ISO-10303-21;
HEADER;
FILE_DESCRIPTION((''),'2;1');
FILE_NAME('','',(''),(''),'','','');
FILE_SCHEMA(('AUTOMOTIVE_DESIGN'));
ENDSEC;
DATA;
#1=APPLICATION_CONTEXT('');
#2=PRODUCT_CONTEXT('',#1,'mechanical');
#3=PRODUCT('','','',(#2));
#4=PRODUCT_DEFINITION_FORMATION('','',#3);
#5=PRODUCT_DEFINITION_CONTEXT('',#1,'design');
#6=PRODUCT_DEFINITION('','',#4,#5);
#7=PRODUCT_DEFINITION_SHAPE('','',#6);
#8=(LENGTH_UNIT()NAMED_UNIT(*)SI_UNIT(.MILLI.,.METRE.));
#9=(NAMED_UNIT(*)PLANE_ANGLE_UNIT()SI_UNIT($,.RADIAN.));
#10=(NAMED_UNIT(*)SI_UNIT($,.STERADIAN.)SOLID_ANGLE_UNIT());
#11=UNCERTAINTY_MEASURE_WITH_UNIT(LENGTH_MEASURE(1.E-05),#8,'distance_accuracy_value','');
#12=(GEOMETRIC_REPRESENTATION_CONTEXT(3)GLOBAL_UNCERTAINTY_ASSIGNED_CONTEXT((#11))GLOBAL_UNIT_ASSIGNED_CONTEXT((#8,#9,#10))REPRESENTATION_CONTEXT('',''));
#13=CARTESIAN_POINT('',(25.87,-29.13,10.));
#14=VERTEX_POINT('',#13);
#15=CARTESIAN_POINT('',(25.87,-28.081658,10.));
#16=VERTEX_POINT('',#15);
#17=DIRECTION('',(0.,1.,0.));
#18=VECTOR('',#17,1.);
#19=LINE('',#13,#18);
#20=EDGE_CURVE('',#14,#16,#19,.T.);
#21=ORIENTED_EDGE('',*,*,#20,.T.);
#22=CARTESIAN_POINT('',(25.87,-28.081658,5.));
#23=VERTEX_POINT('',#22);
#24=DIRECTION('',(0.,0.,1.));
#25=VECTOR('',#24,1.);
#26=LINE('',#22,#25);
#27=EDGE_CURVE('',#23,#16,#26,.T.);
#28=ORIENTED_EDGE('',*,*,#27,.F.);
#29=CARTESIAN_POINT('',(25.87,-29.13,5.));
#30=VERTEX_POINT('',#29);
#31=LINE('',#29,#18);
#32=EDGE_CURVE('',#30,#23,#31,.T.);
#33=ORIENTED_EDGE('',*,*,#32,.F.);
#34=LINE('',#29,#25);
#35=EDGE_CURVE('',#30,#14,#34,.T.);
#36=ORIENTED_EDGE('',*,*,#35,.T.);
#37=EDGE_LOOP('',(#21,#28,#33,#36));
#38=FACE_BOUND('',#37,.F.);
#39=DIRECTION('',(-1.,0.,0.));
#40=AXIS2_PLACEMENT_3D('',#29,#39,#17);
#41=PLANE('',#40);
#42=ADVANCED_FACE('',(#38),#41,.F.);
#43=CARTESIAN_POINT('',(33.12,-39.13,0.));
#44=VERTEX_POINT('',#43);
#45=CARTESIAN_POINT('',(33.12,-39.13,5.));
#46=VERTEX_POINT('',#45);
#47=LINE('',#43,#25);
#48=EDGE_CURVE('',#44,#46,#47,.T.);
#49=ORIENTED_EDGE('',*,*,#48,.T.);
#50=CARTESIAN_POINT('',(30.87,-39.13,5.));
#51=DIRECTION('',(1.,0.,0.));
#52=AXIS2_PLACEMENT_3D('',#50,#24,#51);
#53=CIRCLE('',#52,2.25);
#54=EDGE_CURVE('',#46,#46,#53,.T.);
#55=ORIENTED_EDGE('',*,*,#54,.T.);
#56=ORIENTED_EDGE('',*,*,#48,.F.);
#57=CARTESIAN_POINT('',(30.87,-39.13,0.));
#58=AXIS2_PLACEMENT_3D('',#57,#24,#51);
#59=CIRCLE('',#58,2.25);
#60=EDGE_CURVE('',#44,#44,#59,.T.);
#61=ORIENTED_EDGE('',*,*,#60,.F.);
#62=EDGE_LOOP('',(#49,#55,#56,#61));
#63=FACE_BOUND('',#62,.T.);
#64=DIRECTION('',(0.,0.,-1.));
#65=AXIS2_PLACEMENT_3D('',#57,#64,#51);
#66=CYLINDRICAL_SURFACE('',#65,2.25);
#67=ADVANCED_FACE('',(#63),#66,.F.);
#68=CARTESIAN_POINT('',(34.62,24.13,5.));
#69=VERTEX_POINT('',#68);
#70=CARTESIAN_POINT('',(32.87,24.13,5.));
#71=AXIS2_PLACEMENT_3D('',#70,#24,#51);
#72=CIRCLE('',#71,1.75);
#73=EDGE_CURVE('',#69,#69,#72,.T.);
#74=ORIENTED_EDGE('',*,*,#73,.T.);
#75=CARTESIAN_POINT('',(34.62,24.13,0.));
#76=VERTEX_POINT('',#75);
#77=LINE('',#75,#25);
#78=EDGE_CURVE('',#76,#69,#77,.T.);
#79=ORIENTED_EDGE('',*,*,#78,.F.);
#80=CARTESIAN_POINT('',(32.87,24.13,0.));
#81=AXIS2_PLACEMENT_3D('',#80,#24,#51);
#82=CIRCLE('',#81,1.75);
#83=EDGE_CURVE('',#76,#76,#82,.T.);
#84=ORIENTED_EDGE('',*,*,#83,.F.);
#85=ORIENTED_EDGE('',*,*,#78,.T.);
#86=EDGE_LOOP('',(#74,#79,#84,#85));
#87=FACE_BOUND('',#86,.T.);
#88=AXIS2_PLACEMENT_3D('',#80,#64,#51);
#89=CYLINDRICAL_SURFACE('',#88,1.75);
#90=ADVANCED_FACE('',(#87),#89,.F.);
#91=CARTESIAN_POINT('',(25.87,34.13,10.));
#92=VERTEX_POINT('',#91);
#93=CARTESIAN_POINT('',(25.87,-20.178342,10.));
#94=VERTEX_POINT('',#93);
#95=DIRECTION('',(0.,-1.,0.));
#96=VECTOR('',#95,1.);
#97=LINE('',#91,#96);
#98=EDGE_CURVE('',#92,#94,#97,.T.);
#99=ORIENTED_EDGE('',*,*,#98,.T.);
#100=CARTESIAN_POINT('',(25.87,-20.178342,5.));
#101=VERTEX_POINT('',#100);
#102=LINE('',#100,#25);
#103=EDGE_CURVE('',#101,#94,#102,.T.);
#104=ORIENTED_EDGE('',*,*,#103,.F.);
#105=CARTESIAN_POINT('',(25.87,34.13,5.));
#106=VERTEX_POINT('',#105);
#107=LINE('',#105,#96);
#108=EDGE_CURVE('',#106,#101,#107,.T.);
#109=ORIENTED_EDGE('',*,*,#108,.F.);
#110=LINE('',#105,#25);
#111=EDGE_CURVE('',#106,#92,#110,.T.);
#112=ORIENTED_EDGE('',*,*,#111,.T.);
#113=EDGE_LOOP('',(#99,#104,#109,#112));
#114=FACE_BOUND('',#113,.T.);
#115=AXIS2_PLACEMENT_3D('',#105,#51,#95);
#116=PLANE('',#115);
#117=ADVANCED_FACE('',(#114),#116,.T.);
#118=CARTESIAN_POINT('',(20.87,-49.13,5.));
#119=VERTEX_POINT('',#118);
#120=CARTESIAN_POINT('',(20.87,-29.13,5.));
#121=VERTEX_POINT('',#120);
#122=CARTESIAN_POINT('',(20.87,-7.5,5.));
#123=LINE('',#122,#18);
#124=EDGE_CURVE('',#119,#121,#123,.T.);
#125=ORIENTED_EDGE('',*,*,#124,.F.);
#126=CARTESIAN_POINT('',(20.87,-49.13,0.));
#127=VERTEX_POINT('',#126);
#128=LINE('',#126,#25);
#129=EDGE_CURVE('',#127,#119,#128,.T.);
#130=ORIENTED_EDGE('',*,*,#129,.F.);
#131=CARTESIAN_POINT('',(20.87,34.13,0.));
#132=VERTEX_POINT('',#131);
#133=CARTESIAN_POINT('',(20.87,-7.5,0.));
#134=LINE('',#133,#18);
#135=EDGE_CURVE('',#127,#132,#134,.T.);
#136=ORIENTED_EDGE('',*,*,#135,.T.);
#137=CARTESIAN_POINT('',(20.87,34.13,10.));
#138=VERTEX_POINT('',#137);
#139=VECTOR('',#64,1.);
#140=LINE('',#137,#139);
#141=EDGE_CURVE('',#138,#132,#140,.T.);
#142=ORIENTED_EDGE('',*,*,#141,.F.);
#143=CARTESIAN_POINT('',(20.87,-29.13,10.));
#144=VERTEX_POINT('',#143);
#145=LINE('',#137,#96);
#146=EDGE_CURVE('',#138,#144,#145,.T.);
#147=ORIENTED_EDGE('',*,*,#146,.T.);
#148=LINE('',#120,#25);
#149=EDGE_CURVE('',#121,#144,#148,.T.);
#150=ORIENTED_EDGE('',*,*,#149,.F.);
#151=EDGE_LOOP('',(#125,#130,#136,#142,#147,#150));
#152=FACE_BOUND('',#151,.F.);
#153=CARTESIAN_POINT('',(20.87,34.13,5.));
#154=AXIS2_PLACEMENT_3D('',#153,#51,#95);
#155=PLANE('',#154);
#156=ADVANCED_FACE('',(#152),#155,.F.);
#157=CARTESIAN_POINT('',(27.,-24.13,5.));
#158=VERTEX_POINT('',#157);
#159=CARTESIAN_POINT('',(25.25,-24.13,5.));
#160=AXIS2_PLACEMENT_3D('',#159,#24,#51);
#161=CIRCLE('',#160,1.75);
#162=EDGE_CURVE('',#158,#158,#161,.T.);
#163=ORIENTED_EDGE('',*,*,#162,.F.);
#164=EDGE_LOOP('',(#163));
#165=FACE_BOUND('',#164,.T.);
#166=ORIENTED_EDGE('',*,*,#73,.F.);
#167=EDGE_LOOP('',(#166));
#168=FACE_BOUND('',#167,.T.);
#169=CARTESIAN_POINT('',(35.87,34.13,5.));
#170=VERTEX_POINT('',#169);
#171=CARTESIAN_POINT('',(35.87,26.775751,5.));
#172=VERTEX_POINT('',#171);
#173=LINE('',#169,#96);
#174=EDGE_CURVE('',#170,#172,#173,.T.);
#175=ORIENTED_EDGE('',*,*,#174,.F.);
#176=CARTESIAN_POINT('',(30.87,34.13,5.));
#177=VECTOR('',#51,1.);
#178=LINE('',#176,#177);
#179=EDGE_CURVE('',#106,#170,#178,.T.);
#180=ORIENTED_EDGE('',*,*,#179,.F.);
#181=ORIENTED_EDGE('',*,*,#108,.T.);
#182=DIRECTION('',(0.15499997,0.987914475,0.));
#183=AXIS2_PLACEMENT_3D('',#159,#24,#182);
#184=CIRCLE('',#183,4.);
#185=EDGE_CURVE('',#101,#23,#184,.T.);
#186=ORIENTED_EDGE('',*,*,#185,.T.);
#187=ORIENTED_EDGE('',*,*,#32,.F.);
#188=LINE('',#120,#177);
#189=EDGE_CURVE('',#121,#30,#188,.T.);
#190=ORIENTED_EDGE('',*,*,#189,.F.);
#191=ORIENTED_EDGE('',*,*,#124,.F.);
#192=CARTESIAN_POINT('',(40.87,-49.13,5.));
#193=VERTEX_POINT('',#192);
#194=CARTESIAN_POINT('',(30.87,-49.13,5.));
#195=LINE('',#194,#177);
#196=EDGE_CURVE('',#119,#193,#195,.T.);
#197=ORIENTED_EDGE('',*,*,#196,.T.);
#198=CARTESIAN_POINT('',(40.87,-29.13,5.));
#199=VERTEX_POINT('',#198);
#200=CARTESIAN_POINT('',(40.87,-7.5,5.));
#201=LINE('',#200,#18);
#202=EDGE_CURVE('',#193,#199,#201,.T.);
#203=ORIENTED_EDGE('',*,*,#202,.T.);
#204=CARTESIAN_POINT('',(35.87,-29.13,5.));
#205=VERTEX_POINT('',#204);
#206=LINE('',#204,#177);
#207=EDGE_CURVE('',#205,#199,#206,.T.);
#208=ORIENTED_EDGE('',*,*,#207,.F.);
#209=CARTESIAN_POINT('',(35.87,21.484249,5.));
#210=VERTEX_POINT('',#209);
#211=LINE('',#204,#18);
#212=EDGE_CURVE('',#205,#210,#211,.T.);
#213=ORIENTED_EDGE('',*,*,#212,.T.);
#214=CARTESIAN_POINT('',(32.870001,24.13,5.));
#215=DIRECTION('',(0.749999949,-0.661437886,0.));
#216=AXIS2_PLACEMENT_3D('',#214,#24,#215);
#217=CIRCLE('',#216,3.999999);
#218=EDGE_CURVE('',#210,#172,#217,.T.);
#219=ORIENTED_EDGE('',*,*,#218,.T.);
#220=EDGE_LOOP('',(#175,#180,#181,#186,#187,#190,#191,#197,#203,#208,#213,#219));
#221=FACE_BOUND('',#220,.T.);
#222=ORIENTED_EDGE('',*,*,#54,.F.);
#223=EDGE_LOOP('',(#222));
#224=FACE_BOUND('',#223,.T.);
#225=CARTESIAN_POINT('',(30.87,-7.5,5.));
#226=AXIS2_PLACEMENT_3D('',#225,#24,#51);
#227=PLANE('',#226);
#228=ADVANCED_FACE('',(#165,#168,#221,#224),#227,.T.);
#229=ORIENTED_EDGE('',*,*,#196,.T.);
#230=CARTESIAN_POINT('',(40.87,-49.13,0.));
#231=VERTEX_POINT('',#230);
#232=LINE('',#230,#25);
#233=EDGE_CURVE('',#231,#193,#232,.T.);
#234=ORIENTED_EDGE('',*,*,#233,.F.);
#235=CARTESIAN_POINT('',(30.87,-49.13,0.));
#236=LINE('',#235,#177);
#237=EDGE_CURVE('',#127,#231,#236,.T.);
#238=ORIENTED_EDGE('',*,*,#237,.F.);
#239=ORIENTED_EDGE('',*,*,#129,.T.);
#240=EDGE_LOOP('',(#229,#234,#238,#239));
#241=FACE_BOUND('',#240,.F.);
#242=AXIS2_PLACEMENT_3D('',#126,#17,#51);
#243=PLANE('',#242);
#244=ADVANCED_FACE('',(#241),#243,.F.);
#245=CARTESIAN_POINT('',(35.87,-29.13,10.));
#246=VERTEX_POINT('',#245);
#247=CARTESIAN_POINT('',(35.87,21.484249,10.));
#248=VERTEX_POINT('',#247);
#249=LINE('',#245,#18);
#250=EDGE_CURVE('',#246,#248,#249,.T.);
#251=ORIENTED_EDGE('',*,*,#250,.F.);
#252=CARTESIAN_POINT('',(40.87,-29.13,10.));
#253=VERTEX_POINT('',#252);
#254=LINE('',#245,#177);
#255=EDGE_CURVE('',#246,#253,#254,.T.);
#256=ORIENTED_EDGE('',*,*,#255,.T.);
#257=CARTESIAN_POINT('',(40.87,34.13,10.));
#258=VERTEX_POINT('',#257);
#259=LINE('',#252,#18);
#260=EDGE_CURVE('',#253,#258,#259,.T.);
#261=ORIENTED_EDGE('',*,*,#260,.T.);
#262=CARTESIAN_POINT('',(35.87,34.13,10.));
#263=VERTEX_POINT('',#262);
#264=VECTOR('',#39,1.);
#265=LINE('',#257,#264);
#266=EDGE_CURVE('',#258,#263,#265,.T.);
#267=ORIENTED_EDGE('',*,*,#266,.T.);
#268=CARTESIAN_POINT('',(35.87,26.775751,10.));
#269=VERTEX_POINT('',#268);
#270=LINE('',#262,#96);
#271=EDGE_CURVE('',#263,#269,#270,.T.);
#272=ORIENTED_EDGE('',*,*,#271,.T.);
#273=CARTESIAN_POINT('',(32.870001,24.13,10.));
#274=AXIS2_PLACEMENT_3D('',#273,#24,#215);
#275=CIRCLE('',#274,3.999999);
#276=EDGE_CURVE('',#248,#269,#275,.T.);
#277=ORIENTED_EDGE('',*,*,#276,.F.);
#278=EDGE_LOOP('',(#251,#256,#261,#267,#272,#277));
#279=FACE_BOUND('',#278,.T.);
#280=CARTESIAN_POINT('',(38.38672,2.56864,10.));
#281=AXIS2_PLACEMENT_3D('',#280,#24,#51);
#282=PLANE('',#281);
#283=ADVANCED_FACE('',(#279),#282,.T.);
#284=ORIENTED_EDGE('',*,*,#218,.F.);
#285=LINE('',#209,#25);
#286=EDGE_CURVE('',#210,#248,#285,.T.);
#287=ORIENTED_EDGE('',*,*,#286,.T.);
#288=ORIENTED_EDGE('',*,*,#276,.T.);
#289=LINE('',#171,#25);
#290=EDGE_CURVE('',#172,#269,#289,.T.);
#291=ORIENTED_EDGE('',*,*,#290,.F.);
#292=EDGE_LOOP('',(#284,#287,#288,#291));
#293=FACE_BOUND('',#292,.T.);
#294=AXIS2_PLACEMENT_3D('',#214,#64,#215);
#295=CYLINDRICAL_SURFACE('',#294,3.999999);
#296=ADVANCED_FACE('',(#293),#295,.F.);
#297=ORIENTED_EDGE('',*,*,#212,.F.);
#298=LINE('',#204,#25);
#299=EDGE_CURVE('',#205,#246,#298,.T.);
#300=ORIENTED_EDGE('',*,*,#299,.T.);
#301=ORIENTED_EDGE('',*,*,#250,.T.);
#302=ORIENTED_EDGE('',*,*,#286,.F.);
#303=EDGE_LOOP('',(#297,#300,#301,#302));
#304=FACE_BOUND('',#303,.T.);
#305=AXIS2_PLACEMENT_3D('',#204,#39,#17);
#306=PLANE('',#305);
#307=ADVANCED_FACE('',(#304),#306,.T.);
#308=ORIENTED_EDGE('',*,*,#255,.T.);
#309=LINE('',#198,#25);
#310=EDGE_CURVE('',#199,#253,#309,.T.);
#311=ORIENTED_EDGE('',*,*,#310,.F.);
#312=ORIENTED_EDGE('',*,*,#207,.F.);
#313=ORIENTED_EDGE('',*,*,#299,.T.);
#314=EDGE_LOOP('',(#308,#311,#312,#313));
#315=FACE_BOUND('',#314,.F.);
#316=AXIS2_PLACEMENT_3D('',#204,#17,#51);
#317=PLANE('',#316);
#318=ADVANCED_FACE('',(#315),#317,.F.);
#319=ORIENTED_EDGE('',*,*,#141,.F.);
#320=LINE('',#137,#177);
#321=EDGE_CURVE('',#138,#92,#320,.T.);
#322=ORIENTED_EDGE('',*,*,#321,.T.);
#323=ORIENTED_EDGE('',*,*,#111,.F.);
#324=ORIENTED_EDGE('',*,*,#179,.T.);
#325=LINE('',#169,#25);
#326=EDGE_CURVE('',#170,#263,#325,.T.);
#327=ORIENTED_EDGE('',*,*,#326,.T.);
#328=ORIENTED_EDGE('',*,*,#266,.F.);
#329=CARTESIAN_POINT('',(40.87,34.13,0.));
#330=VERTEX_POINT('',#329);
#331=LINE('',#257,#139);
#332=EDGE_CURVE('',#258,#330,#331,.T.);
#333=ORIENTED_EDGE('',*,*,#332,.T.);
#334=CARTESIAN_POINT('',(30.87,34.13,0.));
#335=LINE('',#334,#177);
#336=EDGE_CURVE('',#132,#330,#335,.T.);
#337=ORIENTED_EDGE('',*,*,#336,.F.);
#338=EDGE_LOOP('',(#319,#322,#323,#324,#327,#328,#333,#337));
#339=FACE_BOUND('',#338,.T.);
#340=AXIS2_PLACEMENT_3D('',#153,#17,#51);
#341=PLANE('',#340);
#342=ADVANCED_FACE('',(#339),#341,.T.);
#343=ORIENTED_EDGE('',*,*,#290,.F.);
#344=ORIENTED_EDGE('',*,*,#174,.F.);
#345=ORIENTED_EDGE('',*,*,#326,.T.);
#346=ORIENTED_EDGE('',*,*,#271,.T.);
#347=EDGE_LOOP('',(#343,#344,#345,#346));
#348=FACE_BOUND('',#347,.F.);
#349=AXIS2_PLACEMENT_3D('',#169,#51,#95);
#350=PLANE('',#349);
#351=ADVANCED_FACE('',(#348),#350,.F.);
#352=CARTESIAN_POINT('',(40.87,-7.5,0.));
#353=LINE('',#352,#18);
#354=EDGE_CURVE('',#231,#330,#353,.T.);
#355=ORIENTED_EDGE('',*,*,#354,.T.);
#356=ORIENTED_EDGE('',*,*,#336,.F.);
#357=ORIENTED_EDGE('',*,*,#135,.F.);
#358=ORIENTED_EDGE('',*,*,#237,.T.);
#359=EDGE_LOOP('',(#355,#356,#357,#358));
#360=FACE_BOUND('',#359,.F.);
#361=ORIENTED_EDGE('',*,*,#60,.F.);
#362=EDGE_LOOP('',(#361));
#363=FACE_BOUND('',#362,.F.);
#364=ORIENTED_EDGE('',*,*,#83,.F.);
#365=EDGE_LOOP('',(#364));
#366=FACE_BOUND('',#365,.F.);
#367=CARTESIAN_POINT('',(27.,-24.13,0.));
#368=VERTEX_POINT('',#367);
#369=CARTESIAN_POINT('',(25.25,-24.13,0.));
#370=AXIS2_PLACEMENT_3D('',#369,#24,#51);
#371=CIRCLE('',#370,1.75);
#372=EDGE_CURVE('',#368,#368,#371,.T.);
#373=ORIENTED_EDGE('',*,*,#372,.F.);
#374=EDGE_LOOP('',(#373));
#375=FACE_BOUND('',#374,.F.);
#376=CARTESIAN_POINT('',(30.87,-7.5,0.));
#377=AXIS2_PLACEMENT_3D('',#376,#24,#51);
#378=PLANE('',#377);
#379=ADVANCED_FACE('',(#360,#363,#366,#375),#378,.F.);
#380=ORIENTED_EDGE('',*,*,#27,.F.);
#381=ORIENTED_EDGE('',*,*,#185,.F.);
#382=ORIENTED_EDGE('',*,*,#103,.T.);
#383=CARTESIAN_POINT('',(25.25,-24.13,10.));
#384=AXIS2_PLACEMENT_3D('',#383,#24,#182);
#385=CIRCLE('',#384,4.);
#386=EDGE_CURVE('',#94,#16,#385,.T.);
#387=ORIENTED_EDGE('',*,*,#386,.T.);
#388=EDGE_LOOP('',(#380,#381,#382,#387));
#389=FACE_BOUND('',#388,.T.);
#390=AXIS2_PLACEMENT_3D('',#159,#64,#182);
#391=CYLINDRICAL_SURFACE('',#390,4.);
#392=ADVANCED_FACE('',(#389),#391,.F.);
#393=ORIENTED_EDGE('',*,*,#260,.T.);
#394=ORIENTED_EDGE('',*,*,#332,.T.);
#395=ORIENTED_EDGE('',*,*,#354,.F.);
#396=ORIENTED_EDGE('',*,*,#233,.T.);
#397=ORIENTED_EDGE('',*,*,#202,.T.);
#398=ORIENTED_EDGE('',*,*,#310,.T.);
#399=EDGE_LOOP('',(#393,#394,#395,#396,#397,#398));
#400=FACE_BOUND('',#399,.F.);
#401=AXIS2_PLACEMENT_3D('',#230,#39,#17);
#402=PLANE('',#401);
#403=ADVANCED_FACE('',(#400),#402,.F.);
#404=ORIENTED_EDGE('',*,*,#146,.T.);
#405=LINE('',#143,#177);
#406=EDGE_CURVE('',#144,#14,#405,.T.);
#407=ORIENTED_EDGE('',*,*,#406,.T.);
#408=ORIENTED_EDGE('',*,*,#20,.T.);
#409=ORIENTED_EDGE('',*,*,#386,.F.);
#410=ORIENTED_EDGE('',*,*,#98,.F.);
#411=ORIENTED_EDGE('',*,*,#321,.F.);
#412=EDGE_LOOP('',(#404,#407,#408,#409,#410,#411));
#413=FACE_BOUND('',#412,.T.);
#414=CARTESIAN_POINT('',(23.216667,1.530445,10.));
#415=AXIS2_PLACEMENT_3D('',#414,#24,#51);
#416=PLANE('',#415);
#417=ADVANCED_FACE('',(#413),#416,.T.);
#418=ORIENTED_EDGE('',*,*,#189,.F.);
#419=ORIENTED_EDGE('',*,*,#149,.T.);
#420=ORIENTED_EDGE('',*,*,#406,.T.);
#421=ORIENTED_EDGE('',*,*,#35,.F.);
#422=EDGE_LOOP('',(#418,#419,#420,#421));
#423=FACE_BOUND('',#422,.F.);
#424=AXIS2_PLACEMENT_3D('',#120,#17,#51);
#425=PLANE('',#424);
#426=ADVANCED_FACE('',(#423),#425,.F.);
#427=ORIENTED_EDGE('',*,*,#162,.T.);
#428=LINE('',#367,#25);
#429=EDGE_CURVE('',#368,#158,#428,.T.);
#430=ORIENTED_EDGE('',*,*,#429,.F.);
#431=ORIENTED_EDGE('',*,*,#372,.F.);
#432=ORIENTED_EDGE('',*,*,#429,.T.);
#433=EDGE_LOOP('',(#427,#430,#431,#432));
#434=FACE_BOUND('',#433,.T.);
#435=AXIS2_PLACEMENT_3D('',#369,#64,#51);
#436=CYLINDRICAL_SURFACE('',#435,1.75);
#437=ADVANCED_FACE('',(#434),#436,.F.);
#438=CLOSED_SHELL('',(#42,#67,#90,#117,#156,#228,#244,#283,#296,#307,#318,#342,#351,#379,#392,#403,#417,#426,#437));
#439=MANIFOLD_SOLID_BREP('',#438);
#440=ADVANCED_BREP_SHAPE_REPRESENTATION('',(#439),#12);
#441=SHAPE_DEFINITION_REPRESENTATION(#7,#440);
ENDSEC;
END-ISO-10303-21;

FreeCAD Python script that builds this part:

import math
import FreeCAD as App
import Part
import Sketcher

doc = App.newDocument("Part")
body = doc.addObject("PartDesign::Body", "Body")

sketch1 = body.newObject("Sketcher::SketchObject", "Sketch")
sketch1.AttachmentSupport = (doc.getObject("XY_Plane"), [""])
sketch1.MapMode = "FlatFace"
sketch1.addGeometry([
    Part.LineSegment(App.Vector(20.9, 34.1, 0), App.Vector(20.9, -49.1, 0)),
    Part.LineSegment(App.Vector(20.9, -49.1, 0), App.Vector(40.9, -49.1, 0)),
    Part.LineSegment(App.Vector(40.9, -49.1, 0), App.Vector(40.9, 34.1, 0)),
    Part.LineSegment(App.Vector(40.9, 34.1, 0), App.Vector(20.9, 34.1, 0)),
    Part.Circle(App.Vector(25.2, -24.1, 0), App.Vector(0, 0, 1), 1.8),
    Part.Circle(App.Vector(30.9, -39.1, 0), App.Vector(0, 0, 1), 2.2),
    Part.Circle(App.Vector(32.9, 24.1, 0), App.Vector(0, 0, 1), 1.8),
], False)
sketch1.addConstraint([
    Sketcher.Constraint("Coincident", 0, 2, 1, 1),
    Sketcher.Constraint("Coincident", 1, 2, 2, 1),
    Sketcher.Constraint("Coincident", 2, 2, 3, 1),
    Sketcher.Constraint("Coincident", 3, 2, 0, 1),
    Sketcher.Constraint("Vertical", 0),
    Sketcher.Constraint("Horizontal", 1),
    Sketcher.Constraint("Vertical", 2),
    Sketcher.Constraint("Horizontal", 3),
    Sketcher.Constraint("Equal", 4, 6),
    Sketcher.Constraint("Diameter", 4, 3.5),
    Sketcher.Constraint("Diameter", 5, 4.5),
    Sketcher.Constraint("DistanceX", 1, 1, 1, 2, 20.0),
    Sketcher.Constraint("DistanceY", 5, 3, 4, 3, 15.0),
    Sketcher.Constraint("DistanceX", 5, 3, 6, 3, 2.0),
    Sketcher.Constraint("DistanceX", 0, 2, 5, 3, 10.0),
    Sketcher.Constraint("DistanceY", 0, 2, 5, 3, 10.0),
    Sketcher.Constraint("DistanceY", 6, 3, 2, 2, 10.0),
    Sketcher.Constraint("DistanceY", 0, 2, 0, 1, 83.26),
    Sketcher.Constraint("DistanceX", -1, 1, 4, 3, 25.25),
    Sketcher.Constraint("DistanceY", 4, 3, -1, 1, 24.13),
    Sketcher.Constraint("DistanceX", -1, 1, 5, 3, 30.87),
])
pad1 = body.newObject("PartDesign::Pad", "Pad")
pad1.Profile = sketch1
pad1.Length = 5

sketch2 = body.newObject("Sketcher::SketchObject", "Sketch001")
sketch2.AttachmentSupport = (doc.getObject("XY_Plane"), [""])
sketch2.MapMode = "FlatFace"
sketch2.AttachmentOffset = App.Placement(App.Vector(0, 0, 5), App.Rotation())
sketch2.addGeometry([
    Part.LineSegment(App.Vector(20.9, 34.1, 0), App.Vector(20.9, -29.1, 0)),
    Part.LineSegment(App.Vector(20.9, -29.1, 0), App.Vector(25.9, -29.1, 0)),
    Part.LineSegment(App.Vector(25.9, -29.1, 0), App.Vector(25.9, -28.1, 0)),
    Part.ArcOfCircle(Part.Circle(App.Vector(25.3, -24.1, 0), App.Vector(0, 0, 1), 4), math.radians(81), math.radians(279)),
    Part.LineSegment(App.Vector(25.9, -20.2, 0), App.Vector(25.9, 34.1, 0)),
    Part.LineSegment(App.Vector(25.9, 34.1, 0), App.Vector(20.9, 34.1, 0)),
    Part.LineSegment(App.Vector(40.9, 34.1, 0), App.Vector(35.9, 34.1, 0)),
    Part.LineSegment(App.Vector(35.9, 34.1, 0), App.Vector(35.9, 26.8, 0)),
    Part.ArcOfCircle(Part.Circle(App.Vector(32.9, 24.1, 0), App.Vector(0, 0, 1), 4), math.radians(-41), math.radians(41)),
    Part.LineSegment(App.Vector(35.9, 21.5, 0), App.Vector(35.9, -29.1, 0)),
    Part.LineSegment(App.Vector(35.9, -29.1, 0), App.Vector(40.9, -29.1, 0)),
    Part.LineSegment(App.Vector(40.9, -29.1, 0), App.Vector(40.9, 34.1, 0)),
], False)
sketch2.addConstraint([
    Sketcher.Constraint("Coincident", 0, 2, 1, 1),
    Sketcher.Constraint("Coincident", 1, 2, 2, 1),
    Sketcher.Constraint("Coincident", 2, 2, 3, 2),
    Sketcher.Constraint("Coincident", 3, 1, 4, 1),
    Sketcher.Constraint("Coincident", 4, 2, 5, 1),
    Sketcher.Constraint("Coincident", 5, 2, 0, 1),
    Sketcher.Constraint("Coincident", 6, 2, 7, 1),
    Sketcher.Constraint("Coincident", 7, 2, 8, 2),
    Sketcher.Constraint("Coincident", 8, 1, 9, 1),
    Sketcher.Constraint("Coincident", 9, 2, 10, 1),
    Sketcher.Constraint("Coincident", 10, 2, 11, 1),
    Sketcher.Constraint("Coincident", 11, 2, 6, 1),
    Sketcher.Constraint("Vertical", 0),
    Sketcher.Constraint("Horizontal", 1),
    Sketcher.Constraint("Vertical", 2),
    Sketcher.Constraint("Vertical", 4),
    Sketcher.Constraint("Horizontal", 5),
    Sketcher.Constraint("Horizontal", 6),
    Sketcher.Constraint("Vertical", 7),
    Sketcher.Constraint("Vertical", 9),
    Sketcher.Constraint("Horizontal", 10),
    Sketcher.Constraint("Vertical", 11),
    Sketcher.Constraint("Equal", 3, 8),
    Sketcher.Constraint("Horizontal", 5, 2, 6, 2),
    Sketcher.Constraint("Horizontal", 1, 2, 9, 2),
    Sketcher.Constraint("Vertical", 2, 2, 3, 1),
    Sketcher.Constraint("Vertical", 7, 2, 8, 1),
    Sketcher.Constraint("Equal", 5, 6),
    Sketcher.Constraint("Radius", 3, 4.0),
    Sketcher.Constraint("DistanceX", 1, 1, 1, 2, 5.0),
    Sketcher.Constraint("DistanceY", 0, 2, 3, 3, 5.0),
    Sketcher.Constraint("DistanceX", 0, 2, 8, 3, 12.000001),
    Sketcher.Constraint("DistanceY", 8, 3, 4, 2, 10.0),
    Sketcher.Constraint("DistanceX", 4, 2, 6, 2, 10.0),
    Sketcher.Constraint("DistanceY", 0, 2, 0, 1, 63.26),
    Sketcher.Constraint("DistanceX", -1, 1, 3, 3, 25.25),
    Sketcher.Constraint("DistanceY", 3, 3, -1, 1, 24.13),
    Sketcher.Constraint("DistanceX", -1, 1, 8, 3, 32.870001),
])
pad2 = body.newObject("PartDesign::Pad", "Pad001")
pad2.Profile = sketch2
pad2.Length = 5

doc.recompute()
